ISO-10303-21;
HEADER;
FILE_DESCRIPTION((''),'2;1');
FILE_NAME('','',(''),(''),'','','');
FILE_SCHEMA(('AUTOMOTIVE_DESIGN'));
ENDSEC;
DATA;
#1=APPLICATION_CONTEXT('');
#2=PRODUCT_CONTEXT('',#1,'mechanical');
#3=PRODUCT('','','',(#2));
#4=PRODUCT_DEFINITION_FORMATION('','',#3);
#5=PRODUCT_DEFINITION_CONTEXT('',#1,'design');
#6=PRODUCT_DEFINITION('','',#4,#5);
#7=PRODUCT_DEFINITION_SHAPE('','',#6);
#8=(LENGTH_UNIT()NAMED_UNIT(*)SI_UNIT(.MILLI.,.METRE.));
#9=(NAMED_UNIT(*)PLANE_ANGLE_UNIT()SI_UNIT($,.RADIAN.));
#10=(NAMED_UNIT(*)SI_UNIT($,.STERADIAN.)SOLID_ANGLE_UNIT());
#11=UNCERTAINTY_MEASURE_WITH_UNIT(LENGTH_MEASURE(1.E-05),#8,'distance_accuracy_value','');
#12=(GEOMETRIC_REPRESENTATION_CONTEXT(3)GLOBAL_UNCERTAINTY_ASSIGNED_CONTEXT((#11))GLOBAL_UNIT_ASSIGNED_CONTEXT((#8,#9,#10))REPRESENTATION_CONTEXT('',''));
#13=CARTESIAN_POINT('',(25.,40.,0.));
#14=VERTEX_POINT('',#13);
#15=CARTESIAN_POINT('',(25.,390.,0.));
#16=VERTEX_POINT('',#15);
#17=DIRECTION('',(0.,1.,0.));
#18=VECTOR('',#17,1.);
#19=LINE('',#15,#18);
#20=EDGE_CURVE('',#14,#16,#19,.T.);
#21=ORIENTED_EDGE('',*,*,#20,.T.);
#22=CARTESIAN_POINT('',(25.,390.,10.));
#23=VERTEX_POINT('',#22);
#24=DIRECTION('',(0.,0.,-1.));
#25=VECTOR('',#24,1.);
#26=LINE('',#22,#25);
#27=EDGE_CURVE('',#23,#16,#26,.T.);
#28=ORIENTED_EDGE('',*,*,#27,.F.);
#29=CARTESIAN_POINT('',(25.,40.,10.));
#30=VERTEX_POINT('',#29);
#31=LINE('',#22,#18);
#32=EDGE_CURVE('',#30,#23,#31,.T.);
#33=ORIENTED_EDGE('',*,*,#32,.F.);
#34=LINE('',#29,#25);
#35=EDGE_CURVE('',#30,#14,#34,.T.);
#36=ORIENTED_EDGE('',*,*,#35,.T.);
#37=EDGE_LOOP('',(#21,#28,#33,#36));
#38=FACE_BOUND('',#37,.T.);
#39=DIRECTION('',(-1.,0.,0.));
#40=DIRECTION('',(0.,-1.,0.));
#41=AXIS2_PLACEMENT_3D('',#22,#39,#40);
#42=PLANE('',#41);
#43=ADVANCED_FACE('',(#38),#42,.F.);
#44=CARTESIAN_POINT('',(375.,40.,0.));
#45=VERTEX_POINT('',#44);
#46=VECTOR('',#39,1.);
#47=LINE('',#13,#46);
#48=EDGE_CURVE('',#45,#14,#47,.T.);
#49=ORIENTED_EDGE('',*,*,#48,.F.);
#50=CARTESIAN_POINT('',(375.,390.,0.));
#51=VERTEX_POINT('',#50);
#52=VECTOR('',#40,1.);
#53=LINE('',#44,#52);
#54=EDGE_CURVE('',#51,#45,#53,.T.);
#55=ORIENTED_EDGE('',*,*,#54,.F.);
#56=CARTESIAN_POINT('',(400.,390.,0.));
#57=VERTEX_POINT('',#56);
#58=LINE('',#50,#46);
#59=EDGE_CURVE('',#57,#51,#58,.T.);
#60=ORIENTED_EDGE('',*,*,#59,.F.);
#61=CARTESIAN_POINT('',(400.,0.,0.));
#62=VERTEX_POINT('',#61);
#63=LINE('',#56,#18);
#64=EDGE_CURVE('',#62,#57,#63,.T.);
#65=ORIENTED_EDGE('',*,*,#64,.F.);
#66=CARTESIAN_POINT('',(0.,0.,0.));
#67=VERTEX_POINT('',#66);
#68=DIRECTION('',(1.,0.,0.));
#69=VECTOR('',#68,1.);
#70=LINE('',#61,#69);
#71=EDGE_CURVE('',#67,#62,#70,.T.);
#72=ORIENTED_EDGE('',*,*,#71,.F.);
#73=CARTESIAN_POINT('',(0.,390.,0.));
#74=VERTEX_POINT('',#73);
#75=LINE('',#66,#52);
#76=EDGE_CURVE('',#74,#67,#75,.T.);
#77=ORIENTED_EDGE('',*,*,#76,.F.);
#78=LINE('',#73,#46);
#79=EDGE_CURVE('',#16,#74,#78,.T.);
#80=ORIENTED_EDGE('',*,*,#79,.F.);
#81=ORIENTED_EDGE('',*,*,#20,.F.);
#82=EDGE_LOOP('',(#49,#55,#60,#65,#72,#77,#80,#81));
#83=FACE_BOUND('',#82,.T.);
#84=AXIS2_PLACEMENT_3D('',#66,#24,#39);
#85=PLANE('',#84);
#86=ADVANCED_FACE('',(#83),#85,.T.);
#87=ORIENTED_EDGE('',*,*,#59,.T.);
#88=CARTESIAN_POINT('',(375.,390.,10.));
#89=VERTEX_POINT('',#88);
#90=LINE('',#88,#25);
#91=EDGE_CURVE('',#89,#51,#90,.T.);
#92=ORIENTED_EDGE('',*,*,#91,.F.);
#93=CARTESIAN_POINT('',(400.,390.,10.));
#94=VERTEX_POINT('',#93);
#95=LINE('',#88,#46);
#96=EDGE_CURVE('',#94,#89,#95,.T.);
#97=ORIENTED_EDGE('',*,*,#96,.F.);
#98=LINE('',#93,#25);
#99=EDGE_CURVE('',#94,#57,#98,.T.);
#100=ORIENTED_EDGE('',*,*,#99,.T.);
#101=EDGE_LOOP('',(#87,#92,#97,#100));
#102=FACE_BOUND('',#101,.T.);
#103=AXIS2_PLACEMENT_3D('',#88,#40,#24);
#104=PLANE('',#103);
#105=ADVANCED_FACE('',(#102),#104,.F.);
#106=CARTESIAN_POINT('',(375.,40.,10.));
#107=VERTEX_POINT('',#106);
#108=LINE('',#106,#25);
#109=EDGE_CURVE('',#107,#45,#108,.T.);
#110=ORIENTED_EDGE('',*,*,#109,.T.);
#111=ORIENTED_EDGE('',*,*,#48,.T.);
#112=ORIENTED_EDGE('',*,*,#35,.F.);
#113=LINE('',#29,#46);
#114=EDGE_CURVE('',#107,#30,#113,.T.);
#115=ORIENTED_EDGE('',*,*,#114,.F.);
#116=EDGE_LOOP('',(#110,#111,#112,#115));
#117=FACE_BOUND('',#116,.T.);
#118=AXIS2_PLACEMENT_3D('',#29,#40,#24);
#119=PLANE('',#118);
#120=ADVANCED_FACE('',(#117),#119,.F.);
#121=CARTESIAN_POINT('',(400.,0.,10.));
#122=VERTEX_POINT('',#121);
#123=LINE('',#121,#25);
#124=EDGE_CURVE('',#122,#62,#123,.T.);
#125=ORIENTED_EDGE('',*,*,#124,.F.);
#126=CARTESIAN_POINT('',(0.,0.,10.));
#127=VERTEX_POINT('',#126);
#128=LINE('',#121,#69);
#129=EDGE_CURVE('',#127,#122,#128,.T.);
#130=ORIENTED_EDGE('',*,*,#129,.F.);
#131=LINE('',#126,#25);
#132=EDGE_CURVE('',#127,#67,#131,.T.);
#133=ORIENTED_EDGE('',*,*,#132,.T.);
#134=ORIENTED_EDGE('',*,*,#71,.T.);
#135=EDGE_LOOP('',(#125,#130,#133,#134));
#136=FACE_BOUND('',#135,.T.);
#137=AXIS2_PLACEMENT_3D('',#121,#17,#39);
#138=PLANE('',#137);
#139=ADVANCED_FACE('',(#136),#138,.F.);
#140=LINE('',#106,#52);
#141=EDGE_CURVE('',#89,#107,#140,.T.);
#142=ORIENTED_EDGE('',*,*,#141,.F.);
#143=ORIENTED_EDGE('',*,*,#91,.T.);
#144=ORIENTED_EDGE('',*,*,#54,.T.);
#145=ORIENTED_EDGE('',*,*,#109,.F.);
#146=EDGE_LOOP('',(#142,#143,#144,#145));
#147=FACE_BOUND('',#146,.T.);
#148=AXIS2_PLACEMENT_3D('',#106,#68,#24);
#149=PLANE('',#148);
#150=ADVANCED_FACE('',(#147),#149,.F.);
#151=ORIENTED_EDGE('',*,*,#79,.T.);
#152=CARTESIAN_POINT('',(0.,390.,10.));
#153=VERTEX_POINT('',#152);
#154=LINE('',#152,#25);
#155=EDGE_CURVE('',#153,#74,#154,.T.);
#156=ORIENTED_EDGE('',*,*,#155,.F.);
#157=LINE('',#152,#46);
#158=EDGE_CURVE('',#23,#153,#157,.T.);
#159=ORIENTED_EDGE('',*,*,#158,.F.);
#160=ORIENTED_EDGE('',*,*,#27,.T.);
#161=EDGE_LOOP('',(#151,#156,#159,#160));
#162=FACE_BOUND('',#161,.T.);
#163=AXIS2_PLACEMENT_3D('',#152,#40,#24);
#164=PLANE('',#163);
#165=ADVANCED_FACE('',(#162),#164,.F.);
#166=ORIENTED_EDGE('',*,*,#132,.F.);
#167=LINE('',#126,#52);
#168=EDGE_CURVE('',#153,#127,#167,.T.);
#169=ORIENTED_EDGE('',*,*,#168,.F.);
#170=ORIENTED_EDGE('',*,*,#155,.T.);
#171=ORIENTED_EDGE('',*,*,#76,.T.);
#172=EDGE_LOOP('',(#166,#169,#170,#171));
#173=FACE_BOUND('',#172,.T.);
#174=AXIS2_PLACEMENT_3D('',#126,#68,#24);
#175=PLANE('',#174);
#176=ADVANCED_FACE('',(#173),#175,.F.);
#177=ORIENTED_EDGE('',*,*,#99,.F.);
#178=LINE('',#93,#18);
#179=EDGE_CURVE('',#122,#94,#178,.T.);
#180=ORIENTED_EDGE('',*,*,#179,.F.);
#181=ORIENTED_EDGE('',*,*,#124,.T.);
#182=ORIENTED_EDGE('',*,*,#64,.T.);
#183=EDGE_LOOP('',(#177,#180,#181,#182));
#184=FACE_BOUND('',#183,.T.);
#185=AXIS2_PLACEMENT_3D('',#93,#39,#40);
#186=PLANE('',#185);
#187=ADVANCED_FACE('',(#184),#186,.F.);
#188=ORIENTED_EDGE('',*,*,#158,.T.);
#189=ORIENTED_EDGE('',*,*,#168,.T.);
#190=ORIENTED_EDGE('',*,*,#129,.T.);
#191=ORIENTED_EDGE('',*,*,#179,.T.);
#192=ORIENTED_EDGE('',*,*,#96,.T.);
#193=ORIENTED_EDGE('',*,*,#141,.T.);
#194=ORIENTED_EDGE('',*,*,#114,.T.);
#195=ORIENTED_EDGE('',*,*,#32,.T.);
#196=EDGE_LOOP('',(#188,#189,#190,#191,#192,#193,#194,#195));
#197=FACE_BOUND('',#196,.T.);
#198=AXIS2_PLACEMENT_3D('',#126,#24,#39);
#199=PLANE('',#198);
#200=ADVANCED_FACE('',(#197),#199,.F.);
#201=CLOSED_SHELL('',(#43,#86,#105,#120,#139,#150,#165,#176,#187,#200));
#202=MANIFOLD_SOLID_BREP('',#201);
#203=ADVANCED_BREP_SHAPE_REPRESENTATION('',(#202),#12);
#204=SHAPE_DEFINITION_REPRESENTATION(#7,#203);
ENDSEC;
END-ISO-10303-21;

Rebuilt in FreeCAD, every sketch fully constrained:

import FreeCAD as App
import Part
import Sketcher
from FreeCAD import Vector
Q = App.Units.Quantity

doc = App.newDocument("Part")
body = doc.addObject("PartDesign::Body", "Body")

# Sketch on XY plane
sketch1 = body.newObject("Sketcher::SketchObject", "Sketch")
sketch1.AttachmentSupport = (doc.getObject("XY_Plane"), [""])
sketch1.MapMode = "FlatFace"
sketch1.addGeometry([
    Part.LineSegment(Vector(25, 390, 0), Vector(0, 390, 0)),  # 0
    Part.LineSegment(Vector(0, 390, 0), Vector(0, 0, 0)),  # 1
    Part.LineSegment(Vector(0, 0, 0), Vector(400, 0, 0)),  # 2
    Part.LineSegment(Vector(400, 0, 0), Vector(400, 390, 0)),  # 3
    Part.LineSegment(Vector(400, 390, 0), Vector(375, 390, 0)),  # 4
    Part.LineSegment(Vector(375, 390, 0), Vector(375, 40, 0)),  # 5
    Part.LineSegment(Vector(375, 40, 0), Vector(25, 40, 0)),  # 6
    Part.LineSegment(Vector(25, 40, 0), Vector(25, 390, 0)),  # 7
], False)
sketch1.addConstraint([
    Sketcher.Constraint("Coincident", 0, 2, 1, 1),
    Sketcher.Constraint("Coincident", 1, 2, 2, 1),
    Sketcher.Constraint("Coincident", 2, 2, 3, 1),
    Sketcher.Constraint("Coincident", 3, 2, 4, 1),
    Sketcher.Constraint("Coincident", 4, 2, 5, 1),
    Sketcher.Constraint("Coincident", 5, 2, 6, 1),
    Sketcher.Constraint("Coincident", 6, 2, 7, 1),
    Sketcher.Constraint("Coincident", 7, 2, 0, 1),
    Sketcher.Constraint("Horizontal", 0),
    Sketcher.Constraint("Vertical", 1),
    Sketcher.Constraint("Horizontal", 2),
    Sketcher.Constraint("Vertical", 3),
    Sketcher.Constraint("Horizontal", 4),
    Sketcher.Constraint("Vertical", 5),
    Sketcher.Constraint("Horizontal", 6),
    Sketcher.Constraint("Vertical", 7),
    Sketcher.Constraint("Coincident", 1, 2, -1, 1),
    Sketcher.Constraint("Horizontal", 0, 2, 3, 2),
    Sketcher.Constraint("Equal", 0, 4),
    Sketcher.Constraint("Equal", 6, 5),
    Sketcher.Constraint("DistanceX", 0, 2, 0, 1, Q("25 mm")),
    Sketcher.Constraint("DistanceX", 2, 1, 2, 2, Q("400 mm")),
    Sketcher.Constraint("DistanceY", 1, 2, 1, 1, Q("390 mm")),
])
pad1 = body.newObject("PartDesign::Pad", "Pad")
pad1.Profile = sketch1
pad1.Length = 10

doc.recompute()
